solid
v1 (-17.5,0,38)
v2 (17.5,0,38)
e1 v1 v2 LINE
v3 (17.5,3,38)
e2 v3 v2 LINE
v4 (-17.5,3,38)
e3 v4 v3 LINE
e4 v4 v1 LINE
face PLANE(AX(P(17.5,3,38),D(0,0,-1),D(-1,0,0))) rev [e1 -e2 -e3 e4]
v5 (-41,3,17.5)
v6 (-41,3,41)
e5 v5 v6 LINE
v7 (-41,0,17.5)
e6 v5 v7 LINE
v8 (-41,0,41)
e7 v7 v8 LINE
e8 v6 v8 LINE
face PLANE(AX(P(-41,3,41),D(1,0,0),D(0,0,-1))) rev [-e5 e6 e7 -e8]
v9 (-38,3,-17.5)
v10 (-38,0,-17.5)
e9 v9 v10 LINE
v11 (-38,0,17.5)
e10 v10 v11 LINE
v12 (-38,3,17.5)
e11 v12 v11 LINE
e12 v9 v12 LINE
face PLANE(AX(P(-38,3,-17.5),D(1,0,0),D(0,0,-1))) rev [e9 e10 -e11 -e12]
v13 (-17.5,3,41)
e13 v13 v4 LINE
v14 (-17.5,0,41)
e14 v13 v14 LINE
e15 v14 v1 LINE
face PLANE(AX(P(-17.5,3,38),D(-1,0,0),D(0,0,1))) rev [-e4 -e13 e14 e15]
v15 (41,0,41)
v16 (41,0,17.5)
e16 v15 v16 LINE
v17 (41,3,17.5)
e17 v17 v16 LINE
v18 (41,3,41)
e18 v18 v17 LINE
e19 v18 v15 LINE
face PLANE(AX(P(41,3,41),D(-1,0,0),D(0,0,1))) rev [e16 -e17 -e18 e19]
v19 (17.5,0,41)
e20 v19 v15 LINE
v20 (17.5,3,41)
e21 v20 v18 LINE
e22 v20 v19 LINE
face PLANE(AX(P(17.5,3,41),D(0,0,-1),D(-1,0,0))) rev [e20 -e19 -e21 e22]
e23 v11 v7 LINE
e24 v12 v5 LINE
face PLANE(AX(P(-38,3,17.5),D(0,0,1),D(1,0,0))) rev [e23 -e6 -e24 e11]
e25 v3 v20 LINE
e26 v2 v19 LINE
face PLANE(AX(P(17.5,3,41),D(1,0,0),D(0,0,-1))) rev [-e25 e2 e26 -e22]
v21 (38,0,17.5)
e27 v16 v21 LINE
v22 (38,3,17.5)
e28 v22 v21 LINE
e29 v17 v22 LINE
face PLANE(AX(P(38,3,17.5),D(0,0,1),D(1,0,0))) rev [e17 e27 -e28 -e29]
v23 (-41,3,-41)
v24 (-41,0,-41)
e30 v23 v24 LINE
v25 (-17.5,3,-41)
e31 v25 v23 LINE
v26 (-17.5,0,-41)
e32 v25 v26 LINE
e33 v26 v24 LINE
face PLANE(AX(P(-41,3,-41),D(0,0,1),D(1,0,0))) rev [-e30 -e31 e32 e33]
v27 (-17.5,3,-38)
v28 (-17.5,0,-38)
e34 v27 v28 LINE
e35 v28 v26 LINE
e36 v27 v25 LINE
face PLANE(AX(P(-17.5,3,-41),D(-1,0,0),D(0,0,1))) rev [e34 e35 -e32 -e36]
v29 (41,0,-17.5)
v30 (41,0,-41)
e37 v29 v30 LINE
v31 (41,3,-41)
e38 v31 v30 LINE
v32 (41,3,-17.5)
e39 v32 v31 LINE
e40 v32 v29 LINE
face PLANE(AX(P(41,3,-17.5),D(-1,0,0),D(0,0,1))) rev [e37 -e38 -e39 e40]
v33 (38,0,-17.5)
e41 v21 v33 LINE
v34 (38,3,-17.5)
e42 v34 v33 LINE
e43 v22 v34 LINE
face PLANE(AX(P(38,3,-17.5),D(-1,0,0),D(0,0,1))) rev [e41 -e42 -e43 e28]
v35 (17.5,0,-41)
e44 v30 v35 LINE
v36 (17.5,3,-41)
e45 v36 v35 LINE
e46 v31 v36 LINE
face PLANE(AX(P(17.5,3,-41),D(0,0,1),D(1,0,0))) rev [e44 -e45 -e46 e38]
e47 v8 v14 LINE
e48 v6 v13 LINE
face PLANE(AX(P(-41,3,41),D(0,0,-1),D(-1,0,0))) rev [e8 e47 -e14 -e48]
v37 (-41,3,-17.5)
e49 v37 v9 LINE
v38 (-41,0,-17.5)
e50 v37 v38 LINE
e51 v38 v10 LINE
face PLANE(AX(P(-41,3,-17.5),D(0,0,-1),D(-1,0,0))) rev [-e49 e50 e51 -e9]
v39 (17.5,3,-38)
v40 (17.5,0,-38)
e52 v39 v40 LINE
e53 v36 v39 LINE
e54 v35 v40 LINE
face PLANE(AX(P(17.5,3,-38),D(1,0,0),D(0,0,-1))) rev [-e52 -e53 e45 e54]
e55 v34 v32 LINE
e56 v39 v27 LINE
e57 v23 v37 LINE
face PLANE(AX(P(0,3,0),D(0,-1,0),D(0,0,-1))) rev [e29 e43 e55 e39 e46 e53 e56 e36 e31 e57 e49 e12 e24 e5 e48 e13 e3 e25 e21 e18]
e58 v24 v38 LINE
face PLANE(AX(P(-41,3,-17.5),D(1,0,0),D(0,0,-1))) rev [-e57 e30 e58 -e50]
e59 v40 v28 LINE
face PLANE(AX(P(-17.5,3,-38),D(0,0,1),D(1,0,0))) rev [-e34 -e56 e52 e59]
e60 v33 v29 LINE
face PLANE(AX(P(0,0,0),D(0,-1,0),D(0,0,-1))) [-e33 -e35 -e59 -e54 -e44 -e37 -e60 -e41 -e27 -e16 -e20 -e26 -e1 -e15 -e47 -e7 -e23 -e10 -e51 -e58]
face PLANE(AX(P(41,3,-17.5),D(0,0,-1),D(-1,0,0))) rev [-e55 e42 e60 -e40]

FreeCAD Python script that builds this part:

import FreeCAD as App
import Part
import Sketcher
from FreeCAD import Vector


def add_polygon(sketch, points):
    """Adds a closed chain of lines whose ends are joined by coincident constraints."""
    first, n = sketch.GeometryCount, len(points)
    for a, b in zip(points, points[1:] + points[:1]):
        sketch.addGeometry(Part.LineSegment(App.Vector(*a, 0), App.Vector(*b, 0)), False)
    for i in range(n):
        sketch.addConstraint(Sketcher.Constraint("Coincident", first + i, 2, first + (i + 1) % n, 1))

doc = App.newDocument("Part")
body = doc.addObject("PartDesign::Body", "Body")

# Sketch on XZ plane
sketch1 = body.newObject("Sketcher::SketchObject", "Sketch")
sketch1.AttachmentSupport = (doc.getObject("XZ_Plane"), [""])
sketch1.MapMode = "FlatFace"
add_polygon(sketch1, [(-41, 41), (-17.5, 41), (-17.5, 38), (17.5, 38), (17.5, 41), (41, 41), (41, 17.5), (38, 17.5), (38, -17.5), (41, -17.5), (41, -41), (17.5, -41), (17.5, -38), (-17.5, -38), (-17.5, -41), (-41, -41), (-41, -17.5), (-38, -17.5), (-38, 17.5), (-41, 17.5)])  # lines 0-19
sketch1.addConstraint(Sketcher.Constraint("Horizontal", 0))
sketch1.addConstraint(Sketcher.Constraint("Vertical", 1))
sketch1.addConstraint(Sketcher.Constraint("Horizontal", 2))
sketch1.addConstraint(Sketcher.Constraint("Vertical", 3))
sketch1.addConstraint(Sketcher.Constraint("Horizontal", 4))
sketch1.addConstraint(Sketcher.Constraint("Vertical", 5))
sketch1.addConstraint(Sketcher.Constraint("Horizontal", 6))
sketch1.addConstraint(Sketcher.Constraint("Vertical", 7))
sketch1.addConstraint(Sketcher.Constraint("Horizontal", 8))
sketch1.addConstraint(Sketcher.Constraint("Vertical", 9))
sketch1.addConstraint(Sketcher.Constraint("Horizontal", 10))
sketch1.addConstraint(Sketcher.Constraint("Vertical", 11))
sketch1.addConstraint(Sketcher.Constraint("Horizontal", 12))
sketch1.addConstraint(Sketcher.Constraint("Vertical", 13))
sketch1.addConstraint(Sketcher.Constraint("Horizontal", 14))
sketch1.addConstraint(Sketcher.Constraint("Vertical", 15))
sketch1.addConstraint(Sketcher.Constraint("Horizontal", 16))
sketch1.addConstraint(Sketcher.Constraint("Vertical", 17))
sketch1.addConstraint(Sketcher.Constraint("Horizontal", 18))
sketch1.addConstraint(Sketcher.Constraint("Vertical", 19))
sketch1.addConstraint(Sketcher.Constraint("Symmetric", 0, 2, 10, 2, -1, 1))
sketch1.addConstraint(Sketcher.Constraint("Symmetric", 2, 2, 12, 2, -1, 1))
sketch1.addConstraint(Sketcher.Constraint("Symmetric", 4, 2, 14, 2, -1, 1))
sketch1.addConstraint(Sketcher.Constraint("Symmetric", 6, 2, 16, 2, -1, 1))
sketch1.addConstraint(Sketcher.Constraint("Symmetric", 8, 2, 18, 2, -1, 1))
sketch1.addConstraint(Sketcher.Constraint("Symmetric", 0, 2, 3, 2, -2))
sketch1.addConstraint(Sketcher.Constraint("Symmetric", 8, 2, 15, 2, -2))
sketch1.addConstraint(Sketcher.Constraint("Equal", 18, 1))
sketch1.addConstraint(Sketcher.Constraint("Equal", 14, 5))
sketch1.addConstraint(Sketcher.Constraint("Equal", 12, 7))
sketch1.addConstraint(Sketcher.Constraint("DistanceX", 2, 1, 2, 2, 35.0))
sketch1.addConstraint(Sketcher.Constraint("DistanceX", 6, 2, 6, 1, 3.0))
sketch1.addConstraint(Sketcher.Constraint("DistanceX", 0, 1, 0, 2, 23.5))
pad1 = body.newObject("PartDesign::Pad", "Pad")
pad1.Profile = sketch1
pad1.Length = 3
pad1.Reversed = True

doc.recompute()
